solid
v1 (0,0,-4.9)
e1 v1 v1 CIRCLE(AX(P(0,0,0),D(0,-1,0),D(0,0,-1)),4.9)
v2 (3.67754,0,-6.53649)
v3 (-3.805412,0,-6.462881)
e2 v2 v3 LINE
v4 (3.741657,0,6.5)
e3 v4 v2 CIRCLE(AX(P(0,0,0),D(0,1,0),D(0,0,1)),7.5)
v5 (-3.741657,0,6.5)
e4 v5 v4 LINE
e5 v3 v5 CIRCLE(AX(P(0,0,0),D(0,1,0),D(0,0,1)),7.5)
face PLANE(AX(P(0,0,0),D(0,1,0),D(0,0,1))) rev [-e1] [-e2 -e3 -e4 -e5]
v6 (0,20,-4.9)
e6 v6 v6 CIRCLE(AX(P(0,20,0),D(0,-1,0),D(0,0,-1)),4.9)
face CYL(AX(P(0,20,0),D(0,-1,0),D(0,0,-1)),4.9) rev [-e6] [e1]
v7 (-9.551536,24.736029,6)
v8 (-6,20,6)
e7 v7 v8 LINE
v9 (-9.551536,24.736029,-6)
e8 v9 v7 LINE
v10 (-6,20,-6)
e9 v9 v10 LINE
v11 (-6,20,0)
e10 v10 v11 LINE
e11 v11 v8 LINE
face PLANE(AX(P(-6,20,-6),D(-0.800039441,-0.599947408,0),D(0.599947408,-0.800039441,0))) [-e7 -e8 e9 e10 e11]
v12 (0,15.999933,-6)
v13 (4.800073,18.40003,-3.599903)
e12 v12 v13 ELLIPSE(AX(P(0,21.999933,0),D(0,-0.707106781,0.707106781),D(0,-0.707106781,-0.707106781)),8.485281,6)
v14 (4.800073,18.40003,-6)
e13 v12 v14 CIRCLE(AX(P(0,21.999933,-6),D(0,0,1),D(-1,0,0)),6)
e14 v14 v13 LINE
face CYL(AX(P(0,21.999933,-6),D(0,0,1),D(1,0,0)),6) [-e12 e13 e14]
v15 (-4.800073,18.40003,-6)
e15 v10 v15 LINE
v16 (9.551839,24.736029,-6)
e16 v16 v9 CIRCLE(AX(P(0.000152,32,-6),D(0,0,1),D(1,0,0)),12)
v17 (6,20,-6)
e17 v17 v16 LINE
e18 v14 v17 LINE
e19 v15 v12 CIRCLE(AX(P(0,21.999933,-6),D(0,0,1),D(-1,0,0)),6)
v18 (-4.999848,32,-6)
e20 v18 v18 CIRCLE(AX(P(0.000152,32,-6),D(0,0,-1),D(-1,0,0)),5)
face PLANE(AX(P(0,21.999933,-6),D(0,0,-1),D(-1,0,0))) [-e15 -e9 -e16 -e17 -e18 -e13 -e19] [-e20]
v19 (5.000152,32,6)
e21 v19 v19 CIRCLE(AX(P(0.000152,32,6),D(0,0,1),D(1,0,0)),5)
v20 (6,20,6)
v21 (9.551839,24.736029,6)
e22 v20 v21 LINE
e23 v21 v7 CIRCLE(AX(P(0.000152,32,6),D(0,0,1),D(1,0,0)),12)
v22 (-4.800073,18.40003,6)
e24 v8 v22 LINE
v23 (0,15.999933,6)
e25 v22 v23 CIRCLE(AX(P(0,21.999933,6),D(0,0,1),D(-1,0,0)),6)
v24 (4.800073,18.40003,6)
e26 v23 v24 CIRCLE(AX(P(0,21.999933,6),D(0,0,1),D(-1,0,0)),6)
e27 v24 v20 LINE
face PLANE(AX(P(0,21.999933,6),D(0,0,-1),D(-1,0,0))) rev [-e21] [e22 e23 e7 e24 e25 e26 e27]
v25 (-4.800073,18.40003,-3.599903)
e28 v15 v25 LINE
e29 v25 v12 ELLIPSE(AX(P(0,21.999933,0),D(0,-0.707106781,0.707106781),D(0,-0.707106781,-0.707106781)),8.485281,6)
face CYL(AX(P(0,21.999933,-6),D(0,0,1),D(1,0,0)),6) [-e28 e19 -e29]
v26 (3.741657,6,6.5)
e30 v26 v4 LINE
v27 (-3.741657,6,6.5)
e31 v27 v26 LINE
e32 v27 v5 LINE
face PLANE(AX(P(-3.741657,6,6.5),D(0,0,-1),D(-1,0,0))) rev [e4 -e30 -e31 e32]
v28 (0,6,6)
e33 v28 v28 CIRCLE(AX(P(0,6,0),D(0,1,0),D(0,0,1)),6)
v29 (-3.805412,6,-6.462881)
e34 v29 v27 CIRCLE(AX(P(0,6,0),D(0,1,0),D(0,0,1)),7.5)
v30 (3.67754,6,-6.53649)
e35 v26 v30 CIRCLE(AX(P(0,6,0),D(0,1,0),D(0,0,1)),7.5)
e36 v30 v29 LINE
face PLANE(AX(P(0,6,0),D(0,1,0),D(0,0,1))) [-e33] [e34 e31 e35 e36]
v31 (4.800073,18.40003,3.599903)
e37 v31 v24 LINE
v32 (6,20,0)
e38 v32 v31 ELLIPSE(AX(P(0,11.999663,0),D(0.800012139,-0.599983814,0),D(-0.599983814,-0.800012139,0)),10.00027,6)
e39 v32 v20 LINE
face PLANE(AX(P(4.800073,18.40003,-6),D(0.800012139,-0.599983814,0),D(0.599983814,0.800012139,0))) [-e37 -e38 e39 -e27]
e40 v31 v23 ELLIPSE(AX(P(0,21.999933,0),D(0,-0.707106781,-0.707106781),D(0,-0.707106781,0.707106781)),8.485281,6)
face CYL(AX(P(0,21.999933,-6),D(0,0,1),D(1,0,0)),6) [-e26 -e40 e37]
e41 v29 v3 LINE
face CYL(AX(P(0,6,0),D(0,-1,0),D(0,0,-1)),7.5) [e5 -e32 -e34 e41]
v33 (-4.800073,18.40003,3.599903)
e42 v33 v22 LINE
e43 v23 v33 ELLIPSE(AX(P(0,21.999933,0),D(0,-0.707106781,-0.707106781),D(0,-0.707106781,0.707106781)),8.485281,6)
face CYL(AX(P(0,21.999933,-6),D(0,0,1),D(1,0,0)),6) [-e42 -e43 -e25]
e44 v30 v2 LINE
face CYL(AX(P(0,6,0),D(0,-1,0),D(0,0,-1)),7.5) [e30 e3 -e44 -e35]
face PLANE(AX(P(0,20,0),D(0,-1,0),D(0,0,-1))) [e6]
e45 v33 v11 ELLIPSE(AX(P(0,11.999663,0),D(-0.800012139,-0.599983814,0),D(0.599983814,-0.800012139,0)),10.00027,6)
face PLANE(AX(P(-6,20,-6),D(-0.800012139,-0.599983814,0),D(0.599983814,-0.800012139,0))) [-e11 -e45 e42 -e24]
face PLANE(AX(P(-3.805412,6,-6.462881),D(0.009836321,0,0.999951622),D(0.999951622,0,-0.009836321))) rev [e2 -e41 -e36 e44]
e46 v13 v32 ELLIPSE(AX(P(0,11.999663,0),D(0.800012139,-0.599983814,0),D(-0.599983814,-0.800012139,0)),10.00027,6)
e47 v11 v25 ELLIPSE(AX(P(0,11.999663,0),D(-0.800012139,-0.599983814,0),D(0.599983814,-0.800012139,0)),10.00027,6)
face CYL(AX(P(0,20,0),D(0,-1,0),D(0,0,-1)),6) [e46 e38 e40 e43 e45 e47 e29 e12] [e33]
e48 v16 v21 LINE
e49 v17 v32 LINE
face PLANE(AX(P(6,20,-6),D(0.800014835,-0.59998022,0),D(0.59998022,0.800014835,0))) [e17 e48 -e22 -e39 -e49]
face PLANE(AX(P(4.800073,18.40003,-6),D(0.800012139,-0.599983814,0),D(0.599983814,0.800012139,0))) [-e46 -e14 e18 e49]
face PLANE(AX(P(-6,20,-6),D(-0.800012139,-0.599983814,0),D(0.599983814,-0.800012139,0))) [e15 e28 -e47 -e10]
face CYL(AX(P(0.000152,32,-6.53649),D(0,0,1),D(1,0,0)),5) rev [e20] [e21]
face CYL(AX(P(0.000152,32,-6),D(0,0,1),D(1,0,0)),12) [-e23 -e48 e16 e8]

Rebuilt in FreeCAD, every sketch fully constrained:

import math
import FreeCAD as App
import Part
import Sketcher
from FreeCAD import Vector
Q = App.Units.Quantity

doc = App.newDocument("Part")
params = doc.addObject("Spreadsheet::Sheet", "Params")
for row, (alias, value) in enumerate([
    ("sketch1_radius", "7.5 mm"),
    ("pad1_length", "6 mm"),
    ("sketch2_diameter", "12 mm"),
    ("pad2_length", "14 mm"),
    ("sketch3_radius", "12 mm"),
    ("sketch3_radius2", "6 mm"),
    ("pad3_length", "6 mm"),
    ("pad3_length2", "6 mm"),
    ("sketch4_diameter", "10 mm"),
    ("sketch5_diameter", "9.8 mm"),
    ("pocket2_length", "20 mm"),
], start=1):
    params.set(f"A{row}", alias)
    params.set(f"B{row}", "=" + value)
    params.setAlias(f"B{row}", alias)

body = doc.addObject("PartDesign::Body", "Body")

# Sketch on XZ plane
sketch1 = body.newObject("Sketcher::SketchObject", "Sketch")
sketch1.AttachmentSupport = (doc.getObject("XZ_Plane"), [""])
sketch1.MapMode = "FlatFace"
sketch1.addGeometry([
    Part.LineSegment(Vector(4, -7, 0), Vector(-4, -6, 0)),
    Part.ArcOfCircle(Part.Circle(Vector(0, 0, 0), Vector(0, 0, 1), 8), math.radians(120), math.radians(240)),
    Part.LineSegment(Vector(-4, 6, 0), Vector(4, 6, 0)),
    Part.ArcOfCircle(Part.Circle(Vector(0, 0, 0), Vector(0, 0, 1), 8), math.radians(-61), math.radians(60)),
], False)
sketch1.addConstraint([
    Sketcher.Constraint("Coincident", 0, 2, 1, 2),
    Sketcher.Constraint("Coincident", 1, 1, 2, 1),
    Sketcher.Constraint("Coincident", 2, 2, 3, 2),
    Sketcher.Constraint("Coincident", 3, 1, 0, 1),
    Sketcher.Constraint("Horizontal", 2),
    Sketcher.Constraint("Coincident", 1, 3, -1, 1),
    Sketcher.Constraint("Coincident", 3, 3, -1, 1),
    Sketcher.Constraint("Equal", 1, 3),
    Sketcher.Constraint("Radius", 1, Q("7.5 mm")),
    Sketcher.Constraint("DistanceY", -1, 1, 1, 1, Q("6.5 mm")),
    Sketcher.Constraint("DistanceY", 0, 2, -1, 1, Q("6.462881 mm")),
    Sketcher.Constraint("DistanceX", -1, 1, 3, 1, Q("3.67754 mm")),
])
sketch1.setExpression("Constraints[8]", "Params.sketch1_radius")
pad1 = body.newObject("PartDesign::Pad", "Pad")
pad1.Profile = sketch1
pad1.setExpression("Length", "Params.pad1_length")
pad1.Reversed = True

# Sketch on XZ plane
sketch2 = body.newObject("Sketcher::SketchObject", "Sketch001")
sketch2.AttachmentSupport = (doc.getObject("XZ_Plane"), [""])
sketch2.MapMode = "FlatFace"
sketch2.AttachmentOffset = App.Placement(Vector(0, 0, -6), App.Rotation())
sketch2.addGeometry(Part.Circle(Vector(0, 0, 0), Vector(0, 0, 1), 6), False)
sketch2.addConstraint([
    Sketcher.Constraint("Coincident", 0, 3, -1, 1),
    Sketcher.Constraint("Diameter", 0, Q("12 mm")),
])
sketch2.setExpression("Constraints[1]", "Params.sketch2_diameter")
pad2 = body.newObject("PartDesign::Pad", "Pad001")
pad2.Profile = sketch2
pad2.setExpression("Length", "Params.pad2_length")
pad2.Reversed = True

# Sketch on XY plane
sketch3 = body.newObject("Sketcher::SketchObject", "Sketch002")
sketch3.AttachmentSupport = (doc.getObject("XY_Plane"), [""])
sketch3.MapMode = "FlatFace"
sketch3.addGeometry([
    Part.LineSegment(Vector(6, 20, 0), Vector(9.6, 24.7, 0)),  # 0
    Part.ArcOfCircle(Part.Circle(Vector(0, 32, 0), Vector(0, 0, 1), 12), math.radians(-37), math.radians(217)),  # 1
    Part.LineSegment(Vector(-9.6, 24.7, 0), Vector(-6, 20, 0)),  # 2
    Part.LineSegment(Vector(-6, 20, 0), Vector(-4.8, 18.4, 0)),  # 3
    Part.ArcOfCircle(Part.Circle(Vector(0, 22, 0), Vector(0, 0, 1), 6), math.radians(-143), math.radians(-37)),  # 4
    Part.LineSegment(Vector(4.8, 18.4, 0), Vector(6, 20, 0)),  # 5
], False)
sketch3.addConstraint([
    Sketcher.Constraint("Coincident", 0, 2, 1, 1),
    Sketcher.Constraint("Coincident", 1, 2, 2, 1),
    Sketcher.Constraint("Coincident", 2, 2, 3, 1),
    Sketcher.Constraint("Tangent", 3, 2, 4, 1),
    Sketcher.Constraint("Tangent", 4, 2, 5, 1),
    Sketcher.Constraint("Coincident", 5, 2, 0, 1),
    Sketcher.Constraint("Symmetric", 3, 2, 4, 2, -2),
    Sketcher.Constraint("Horizontal", 0, 2, 1, 2),
    Sketcher.Constraint("Horizontal", 2, 2, 5, 2),
    Sketcher.Constraint("Radius", 1, Q("12 mm")),
    Sketcher.Constraint("Radius", 4, Q("6 mm")),
    Sketcher.Constraint("DistanceY", -1, 1, 1, 3, Q("32 mm")),
    Sketcher.Constraint("DistanceX", 2, 2, -1, 1, Q("6 mm")),
    Sketcher.Constraint("DistanceY", -1, 1, 2, 2, Q("20 mm")),
    Sketcher.Constraint("DistanceY", 3, 2, 1, 2, Q("6.336 mm")),
    Sketcher.Constraint("DistanceX", -1, 1, 1, 3, Q("0.000152 mm")),
    Sketcher.Constraint("DistanceX", -1, 1, 0, 2, Q("9.551839 mm")),
])
sketch3.setExpression("Constraints[9]", "Params.sketch3_radius")
sketch3.setExpression("Constraints[10]", "Params.sketch3_radius2")
pad3 = body.newObject("PartDesign::Pad", "Pad002")
pad3.Profile = sketch3
pad3.Type = "TwoLengths"
pad3.setExpression("Length", "Params.pad3_length")
pad3.setExpression("Length2", "Params.pad3_length2")

# Sketch on XY plane
sketch4 = body.newObject("Sketcher::SketchObject", "Sketch003")
sketch4.AttachmentSupport = (doc.getObject("XY_Plane"), [""])
sketch4.MapMode = "FlatFace"
sketch4.AttachmentOffset = App.Placement(Vector(0, 0, 6), App.Rotation())
sketch4.addGeometry(Part.Circle(Vector(0, 32, 0), Vector(0, 0, 1), 5), False)
sketch4.addConstraint([
    Sketcher.Constraint("Diameter", 0, Q("10 mm")),
    Sketcher.Constraint("DistanceY", -1, 1, 0, 3, Q("32 mm")),
    Sketcher.Constraint("DistanceX", -1, 1, 0, 3, Q("0.000152 mm")),
])
sketch4.setExpression("Constraints[0]", "Params.sketch4_diameter")
pocket1 = body.newObject("PartDesign::Pocket", "Pocket")
pocket1.Profile = sketch4
pocket1.Type = "ThroughAll"

# Sketch on XZ plane
sketch5 = body.newObject("Sketcher::SketchObject", "Sketch004")
sketch5.AttachmentSupport = (doc.getObject("XZ_Plane"), [""])
sketch5.MapMode = "FlatFace"
sketch5.addGeometry(Part.Circle(Vector(0, 0, 0), Vector(0, 0, 1), 4.9), False)
sketch5.addConstraint([
    Sketcher.Constraint("Coincident", 0, 3, -1, 1),
    Sketcher.Constraint("Diameter", 0, Q("9.8 mm")),
])
sketch5.setExpression("Constraints[1]", "Params.sketch5_diameter")
pocket2 = body.newObject("PartDesign::Pocket", "Pocket001")
pocket2.Profile = sketch5
pocket2.setExpression("Length", "Params.pocket2_length")

doc.recompute()
